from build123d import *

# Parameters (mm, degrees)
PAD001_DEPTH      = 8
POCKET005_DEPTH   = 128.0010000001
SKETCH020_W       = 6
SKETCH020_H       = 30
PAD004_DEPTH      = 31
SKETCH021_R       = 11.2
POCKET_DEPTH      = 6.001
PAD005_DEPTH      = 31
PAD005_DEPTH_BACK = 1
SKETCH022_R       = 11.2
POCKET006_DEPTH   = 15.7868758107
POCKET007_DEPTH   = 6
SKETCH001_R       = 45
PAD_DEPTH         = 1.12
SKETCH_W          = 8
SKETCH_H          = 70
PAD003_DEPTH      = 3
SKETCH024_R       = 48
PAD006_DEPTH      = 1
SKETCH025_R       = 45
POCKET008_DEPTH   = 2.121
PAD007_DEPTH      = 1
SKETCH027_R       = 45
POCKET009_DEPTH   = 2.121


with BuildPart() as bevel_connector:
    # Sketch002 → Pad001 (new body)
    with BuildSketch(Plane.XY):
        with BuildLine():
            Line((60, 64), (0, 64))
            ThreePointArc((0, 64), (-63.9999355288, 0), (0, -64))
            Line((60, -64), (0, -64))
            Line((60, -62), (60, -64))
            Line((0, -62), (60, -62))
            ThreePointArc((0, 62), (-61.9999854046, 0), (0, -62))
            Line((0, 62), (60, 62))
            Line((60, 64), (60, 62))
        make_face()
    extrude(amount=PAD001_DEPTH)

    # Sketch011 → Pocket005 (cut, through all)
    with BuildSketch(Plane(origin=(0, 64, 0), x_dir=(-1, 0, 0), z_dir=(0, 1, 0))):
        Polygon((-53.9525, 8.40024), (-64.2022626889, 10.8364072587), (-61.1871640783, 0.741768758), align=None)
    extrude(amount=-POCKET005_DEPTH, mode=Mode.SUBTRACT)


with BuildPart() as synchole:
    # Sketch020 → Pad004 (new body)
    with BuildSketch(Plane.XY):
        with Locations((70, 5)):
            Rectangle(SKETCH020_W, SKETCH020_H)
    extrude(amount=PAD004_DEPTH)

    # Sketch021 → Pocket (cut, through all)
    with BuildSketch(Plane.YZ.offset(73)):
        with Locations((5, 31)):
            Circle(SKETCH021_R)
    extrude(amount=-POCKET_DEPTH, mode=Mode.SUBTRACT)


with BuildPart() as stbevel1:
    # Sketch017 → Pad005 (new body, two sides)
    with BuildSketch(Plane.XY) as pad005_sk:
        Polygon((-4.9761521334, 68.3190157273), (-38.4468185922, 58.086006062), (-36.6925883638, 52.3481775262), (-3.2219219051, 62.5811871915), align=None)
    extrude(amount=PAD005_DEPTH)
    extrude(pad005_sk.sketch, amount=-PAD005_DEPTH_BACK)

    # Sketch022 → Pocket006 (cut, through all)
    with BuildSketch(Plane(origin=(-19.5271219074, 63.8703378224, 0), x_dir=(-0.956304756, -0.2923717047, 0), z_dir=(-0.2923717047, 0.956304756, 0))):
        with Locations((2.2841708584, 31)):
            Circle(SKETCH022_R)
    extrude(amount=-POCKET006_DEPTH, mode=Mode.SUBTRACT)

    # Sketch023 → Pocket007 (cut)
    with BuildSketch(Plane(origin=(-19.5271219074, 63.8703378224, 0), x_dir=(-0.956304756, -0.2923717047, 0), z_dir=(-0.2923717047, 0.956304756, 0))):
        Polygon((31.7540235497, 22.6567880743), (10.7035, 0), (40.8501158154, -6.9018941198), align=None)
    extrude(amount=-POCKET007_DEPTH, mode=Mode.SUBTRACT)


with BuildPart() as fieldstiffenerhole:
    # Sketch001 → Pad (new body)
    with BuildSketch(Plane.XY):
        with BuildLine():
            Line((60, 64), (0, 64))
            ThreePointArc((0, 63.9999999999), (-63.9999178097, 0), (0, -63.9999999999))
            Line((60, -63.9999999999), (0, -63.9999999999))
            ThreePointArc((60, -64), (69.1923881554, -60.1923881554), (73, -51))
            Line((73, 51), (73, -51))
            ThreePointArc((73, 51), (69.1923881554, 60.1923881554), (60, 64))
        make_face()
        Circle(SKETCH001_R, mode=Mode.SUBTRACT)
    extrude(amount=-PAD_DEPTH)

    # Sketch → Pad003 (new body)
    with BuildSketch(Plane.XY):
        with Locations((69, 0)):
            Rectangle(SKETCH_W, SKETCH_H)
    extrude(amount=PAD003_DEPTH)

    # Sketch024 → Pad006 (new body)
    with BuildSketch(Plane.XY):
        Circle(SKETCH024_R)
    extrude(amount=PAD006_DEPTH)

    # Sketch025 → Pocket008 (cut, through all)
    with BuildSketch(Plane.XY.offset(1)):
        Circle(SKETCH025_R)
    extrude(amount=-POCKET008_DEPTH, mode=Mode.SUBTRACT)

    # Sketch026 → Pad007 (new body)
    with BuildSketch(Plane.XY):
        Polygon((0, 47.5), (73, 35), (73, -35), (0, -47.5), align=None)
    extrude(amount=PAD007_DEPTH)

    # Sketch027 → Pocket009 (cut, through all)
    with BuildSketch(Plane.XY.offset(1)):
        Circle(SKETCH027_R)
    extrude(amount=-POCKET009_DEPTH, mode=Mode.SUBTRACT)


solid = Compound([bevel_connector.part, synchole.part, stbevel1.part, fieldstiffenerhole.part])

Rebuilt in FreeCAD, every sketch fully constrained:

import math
import FreeCAD as App
import Part
import Sketcher
Q = App.Units.Quantity


def add_polygon(sketch, points):
    """Adds a closed chain of lines whose ends are joined by coincident constraints."""
    first, n = sketch.GeometryCount, len(points)
    for a, b in zip(points, points[1:] + points[:1]):
        sketch.addGeometry(Part.LineSegment(App.Vector(*a, 0), App.Vector(*b, 0)), False)
    for i in range(n):
        sketch.addConstraint(Sketcher.Constraint("Coincident", first + i, 2, first + (i + 1) % n, 1))

doc = App.newDocument("Part")
params = doc.addObject("Spreadsheet::Sheet", "Params")
for row, (alias, value) in enumerate([
    ("sketch1_radius", "64 mm"),
    ("sketch1_radius2", "62 mm"),
    ("sketch1_width", "60 mm"),
    ("sketch1_width2", "60 mm"),
    ("pad1_length", "8 mm"),
    ("sketch3_width", "6 mm"),
    ("sketch3_height", "30 mm"),
    ("pad2_length", "31 mm"),
    ("sketch4_diameter", "22.4 mm"),
    ("sketch5_length", "35 mm"),
    ("sketch5_length2", "6 mm"),
    ("pad3_length", "31 mm"),
    ("pad3_length2", "1 mm"),
    ("sketch6_diameter", "22.4 mm"),
    ("pocket4_length", "6 mm"),
    ("sketch8_diameter", "90 mm"),
    ("sketch8_radius", "64 mm"),
    ("sketch8_radius2", "13 mm"),
    ("sketch8_radius3", "13 mm"),
    ("sketch8_width", "60 mm"),
    ("pad4_length", "1.12 mm"),
    ("sketch9_width", "8 mm"),
    ("sketch9_height", "70 mm"),
    ("pad5_length", "3 mm"),
    ("sketch10_diameter", "96 mm"),
    ("pad6_length", "1 mm"),
    ("sketch11_diameter", "90 mm"),
    ("sketch12_height", "95 mm"),
    ("sketch12_height2", "70 mm"),
    ("pad7_length", "1 mm"),
    ("sketch13_diameter", "90 mm"),
], start=1):
    params.set(f"A{row}", alias)
    params.set(f"B{row}", "=" + value)
    params.setAlias(f"B{row}", alias)

body = doc.addObject("PartDesign::Body", "Body")

sketch1 = body.newObject("Sketcher::SketchObject", "Sketch")
sketch1.AttachmentSupport = (doc.getObject("XY_Plane"), [""])
sketch1.MapMode = "FlatFace"
sketch1.addGeometry([
    Part.LineSegment(App.Vector(60, 64, 0), App.Vector(0, 64, 0)),
    Part.ArcOfCircle(Part.Circle(App.Vector(0.000064, 0, 0), App.Vector(0, 0, 1), 64), math.radians(90.000058), math.radians(269.999942)),
    Part.LineSegment(App.Vector(0, -64, 0), App.Vector(60, -64, 0)),
    Part.LineSegment(App.Vector(60, -64, 0), App.Vector(60, -62, 0)),
    Part.LineSegment(App.Vector(60, -62, 0), App.Vector(0, -62, 0)),
    Part.ArcOfCircle(Part.Circle(App.Vector(0.000015, 0, 0), App.Vector(0, 0, 1), 62), math.radians(90.000013), math.radians(269.999987)),
    Part.LineSegment(App.Vector(0, 62, 0), App.Vector(60, 62, 0)),
    Part.LineSegment(App.Vector(60, 62, 0), App.Vector(60, 64, 0)),
], False)
sketch1.addConstraint([
    Sketcher.Constraint("Coincident", 0, 2, 1, 1),
    Sketcher.Constraint("Coincident", 1, 2, 2, 1),
    Sketcher.Constraint("Coincident", 2, 2, 3, 1),
    Sketcher.Constraint("Coincident", 3, 2, 4, 1),
    Sketcher.Constraint("Coincident", 4, 2, 5, 2),
    Sketcher.Constraint("Coincident", 5, 1, 6, 1),
    Sketcher.Constraint("Coincident", 6, 2, 7, 1),
    Sketcher.Constraint("Coincident", 7, 2, 0, 1),
    Sketcher.Constraint("Horizontal", 0),
    Sketcher.Constraint("Horizontal", 2),
    Sketcher.Constraint("Vertical", 3),
    Sketcher.Constraint("Horizontal", 4),
    Sketcher.Constraint("Horizontal", 6),
    Sketcher.Constraint("Vertical", 7),
    Sketcher.Constraint("PointOnObject", 1, 3, -1),
    Sketcher.Constraint("PointOnObject", 5, 3, -1),
    Sketcher.Constraint("PointOnObject", 0, 2, -2),
    Sketcher.Constraint("PointOnObject", 1, 2, -2),
    Sketcher.Constraint("PointOnObject", 4, 2, -2),
    Sketcher.Constraint("PointOnObject", 5, 1, -2),
    Sketcher.Constraint("Radius", 1, Q("64 mm")),
    Sketcher.Constraint("Radius", 5, Q("62 mm")),
    Sketcher.Constraint("DistanceX", 0, 2, 0, 1, Q("60 mm")),
    Sketcher.Constraint("DistanceX", 2, 1, 2, 2, Q("60 mm")),
    Sketcher.Constraint("DistanceX", 1, 3, 2, 2, Q("59.999936 mm")),
    Sketcher.Constraint("DistanceX", 5, 3, 2, 2, Q("59.999985 mm")),
])
sketch1.setExpression("Constraints[20]", "Params.sketch1_radius")
sketch1.setExpression("Constraints[21]", "Params.sketch1_radius2")
sketch1.setExpression("Constraints[22]", "Params.sketch1_width")
sketch1.setExpression("Constraints[23]", "Params.sketch1_width2")
pad1 = body.newObject("PartDesign::Pad", "Pad")
pad1.Profile = sketch1
pad1.setExpression("Length", "Params.pad1_length")

sketch2 = body.newObject("Sketcher::SketchObject", "Sketch001")
sketch2.AttachmentSupport = (doc.getObject("XZ_Plane"), [""])
sketch2.MapMode = "FlatFace"
sketch2.AttachmentOffset = App.Placement(App.Vector(0, 0, -64), App.Rotation())
add_polygon(sketch2, [(54, 8), (64, 11), (61, 1)])
sketch2.addConstraint([
    Sketcher.Constraint("Equal", 0, 1),
    Sketcher.Constraint("Equal", 1, 2),
    Sketcher.Constraint("Angle", 0, Q("13.37 deg")),
    Sketcher.Constraint("Distance", 0, Q("10.5353 mm")),
    Sketcher.Constraint("DistanceX", -1, 1, 2, 2, Q("53.9525 mm")),
    Sketcher.Constraint("DistanceY", -1, 1, 1, 2, Q("0.741769 mm")),
])
pocket1 = body.newObject("PartDesign::Pocket", "Pocket")
pocket1.Profile = sketch2
pocket1.Type = "ThroughAll"
pocket1.Reversed = True
body2 = doc.addObject("PartDesign::Body", "Body001")

sketch3 = body2.newObject("Sketcher::SketchObject", "Sketch002")
sketch3.AttachmentSupport = (doc.getObject("XY_Plane001"), [""])
sketch3.MapMode = "FlatFace"
add_polygon(sketch3, [(67, 20), (67, -10), (73, -10), (73, 20)])
sketch3.addConstraint([
    Sketcher.Constraint("Vertical", 0),
    Sketcher.Constraint("Horizontal", 1),
    Sketcher.Constraint("Vertical", 2),
    Sketcher.Constraint("Horizontal", 3),
    Sketcher.Constraint("DistanceX", 1, 1, 1, 2, Q("6 mm")),
    Sketcher.Constraint("DistanceY", 0, 2, 0, 1, Q("30 mm")),
    Sketcher.Constraint("DistanceX", -1, 1, 0, 2, Q("67 mm")),
    Sketcher.Constraint("DistanceY", 0, 2, -1, 1, Q("10 mm")),
])
sketch3.setExpression("Constraints[8]", "Params.sketch3_width")
sketch3.setExpression("Constraints[9]", "Params.sketch3_height")
pad2 = body2.newObject("PartDesign::Pad", "Pad001")
pad2.Profile = sketch3
pad2.setExpression("Length", "Params.pad2_length")

sketch4 = body2.newObject("Sketcher::SketchObject", "Sketch003")
sketch4.AttachmentSupport = (doc.getObject("YZ_Plane001"), [""])
sketch4.MapMode = "FlatFace"
sketch4.AttachmentOffset = App.Placement(App.Vector(0, 0, 73), App.Rotation())
sketch4.addGeometry(Part.Circle(App.Vector(5, 31, 0), App.Vector(0, 0, 1), 11), False)
sketch4.addConstraint([
    Sketcher.Constraint("Diameter", 0, Q("22.4 mm")),
    Sketcher.Constraint("DistanceX", -1, 1, 0, 3, Q("5 mm")),
    Sketcher.Constraint("DistanceY", -1, 1, 0, 3, Q("31 mm")),
])
sketch4.setExpression("Constraints[0]", "Params.sketch4_diameter")
pocket2 = body2.newObject("PartDesign::Pocket", "Pocket001")
pocket2.Profile = sketch4
pocket2.Type = "ThroughAll"
body3 = doc.addObject("PartDesign::Body", "Body002")

sketch5 = body3.newObject("Sketcher::SketchObject", "Sketch004")
sketch5.AttachmentSupport = (doc.getObject("XY_Plane002"), [""])
sketch5.MapMode = "FlatFace"
add_polygon(sketch5, [(-5, 68), (-38, 58), (-37, 52), (-3, 63)])
sketch5.addConstraint([
    Sketcher.Constraint("Perpendicular", 0, 1),
    Sketcher.Constraint("Perpendicular", 1, 2),
    Sketcher.Constraint("Perpendicular", 2, 3),
    Sketcher.Constraint("Angle", 0, Q("-163 deg")),
    Sketcher.Constraint("Distance", 0, Q("35 mm")),
    Sketcher.Constraint("Distance", 1, Q("6 mm")),
    Sketcher.Constraint("DistanceX", 0, 2, -1, 1, Q("38.446819 mm")),
    Sketcher.Constraint("DistanceY", -1, 1, 0, 2, Q("58.086006 mm")),
])
sketch5.setExpression("Constraints[8]", "Params.sketch5_length")
sketch5.setExpression("Constraints[9]", "Params.sketch5_length2")
pad3 = body3.newObject("PartDesign::Pad", "Pad002")
pad3.Profile = sketch5
pad3.Type = "TwoLengths"
pad3.setExpression("Length", "Params.pad3_length")
pad3.setExpression("Length2", "Params.pad3_length2")

sketch6 = body3.newObject("Sketcher::SketchObject", "Sketch005")
sketch6.Placement = App.Placement(App.Vector(-19.527122, 63.870338, 0), App.Rotation(App.Vector(-0.956304756, -0.292371705, 0), App.Vector(0, 0, 1), App.Vector(-0.292371705, 0.956304756, 0), "ZXY"))
sketch6.addGeometry(Part.Circle(App.Vector(2, 31, 0), App.Vector(0, 0, 1), 11), False)
sketch6.addConstraint([
    Sketcher.Constraint("Diameter", 0, Q("22.4 mm")),
    Sketcher.Constraint("DistanceY", -1, 1, 0, 3, Q("31 mm")),
    Sketcher.Constraint("DistanceX", -1, 1, 0, 3, Q("2.284171 mm")),
])
sketch6.setExpression("Constraints[0]", "Params.sketch6_diameter")
pocket3 = body3.newObject("PartDesign::Pocket", "Pocket002")
pocket3.Profile = sketch6
pocket3.Type = "ThroughAll"

sketch7 = body3.newObject("Sketcher::SketchObject", "Sketch006")
sketch7.Placement = App.Placement(App.Vector(-19.527122, 63.870338, 0), App.Rotation(App.Vector(-0.956304756, -0.292371705, 0), App.Vector(0, 0, 1), App.Vector(-0.292371705, 0.956304756, 0), "ZXY"))
add_polygon(sketch7, [(32, 23), (11, 0), (41, -7)])
sketch7.addConstraint([
    Sketcher.Constraint("PointOnObject", 0, 2, -1),
    Sketcher.Constraint("Equal", 0, 1),
    Sketcher.Constraint("Equal", 1, 2),
    Sketcher.Constraint("Distance", 0, Q("30.9266 mm")),
    Sketcher.Constraint("DistanceX", -1, 1, 0, 2, Q("10.7035 mm")),
    Sketcher.Constraint("DistanceY", -1, 1, 2, 2, Q("22.656788 mm")),
])
pocket4 = body3.newObject("PartDesign::Pocket", "Pocket003")
pocket4.Profile = sketch7
pocket4.setExpression("Length", "Params.pocket4_length")
body4 = doc.addObject("PartDesign::Body", "Body003")

sketch8 = body4.newObject("Sketcher::SketchObject", "Sketch007")
sketch8.AttachmentSupport = (doc.getObject("XY_Plane003"), [""])
sketch8.MapMode = "FlatFace"
sketch8.addGeometry([
    Part.LineSegment(App.Vector(60, 64, 0), App.Vector(0, 64, 0)),
    Part.ArcOfCircle(Part.Circle(App.Vector(0.000082, 0, 0), App.Vector(0, 0, 1), 64), math.radians(90.000074), math.radians(269.999926)),
    Part.LineSegment(App.Vector(0, -64, 0), App.Vector(60, -64, 0)),
    Part.ArcOfCircle(Part.Circle(App.Vector(60, -51, 0), App.Vector(0, 0, 1), 13), math.radians(-90), math.radians(0)),
    Part.LineSegment(App.Vector(73, -51, 0), App.Vector(73, 51, 0)),
    Part.ArcOfCircle(Part.Circle(App.Vector(60, 51, 0), App.Vector(0, 0, 1), 13), math.radians(0), math.radians(90)),
    Part.Circle(App.Vector(0, 0, 0), App.Vector(0, 0, 1), 45),
], False)
sketch8.addConstraint([
    Sketcher.Constraint("Coincident", 0, 2, 1, 1),
    Sketcher.Constraint("Coincident", 1, 2, 2, 1),
    Sketcher.Constraint("Coincident", 2, 2, 3, 1),
    Sketcher.Constraint("Coincident", 3, 2, 4, 1),
    Sketcher.Constraint("Coincident", 4, 2, 5, 1),
    Sketcher.Constraint("Coincident", 5, 2, 0, 1),
    Sketcher.Constraint("Horizontal", 0),
    Sketcher.Constraint("Horizontal", 2),
    Sketcher.Constraint("Vertical", 4),
    Sketcher.Constraint("Coincident", 6, 3, -1, 1),
    Sketcher.Constraint("PointOnObject", 1, 3, -1),
    Sketcher.Constraint("PointOnObject", 0, 2, -2),
    Sketcher.Constraint("PointOnObject", 1, 2, -2),
    Sketcher.Constraint("Diameter", 6, Q("90 mm")),
    Sketcher.Constraint("Radius", 1, Q("64 mm")),
    Sketcher.Constraint("Radius", 3, Q("13 mm")),
    Sketcher.Constraint("Radius", 5, Q("13 mm")),
    Sketcher.Constraint("DistanceX", 0, 2, 0, 1, Q("60 mm")),
    Sketcher.Constraint("DistanceX", 2, 1, 2, 2, Q("60 mm")),
    Sketcher.Constraint("DistanceY", 4, 1, 4, 2, Q("102 mm")),
    Sketcher.Constraint("DistanceX", -1, 1, 3, 3, Q("60 mm")),
    Sketcher.Constraint("DistanceY", 3, 2, -1, 1, Q("51 mm")),
    Sketcher.Constraint("DistanceX", 1, 3, 3, 3, Q("59.999918 mm")),
])
sketch8.setExpression("Constraints[13]", "Params.sketch8_diameter")
sketch8.setExpression("Constraints[14]", "Params.sketch8_radius")
sketch8.setExpression("Constraints[15]", "Params.sketch8_radius2")
sketch8.setExpression("Constraints[16]", "Params.sketch8_radius3")
sketch8.setExpression("Constraints[17]", "Params.sketch8_width")
pad4 = body4.newObject("PartDesign::Pad", "Pad003")
pad4.Profile = sketch8
pad4.setExpression("Length", "Params.pad4_length")
pad4.Reversed = True

sketch9 = body4.newObject("Sketcher::SketchObject", "Sketch008")
sketch9.AttachmentSupport = (doc.getObject("XY_Plane003"), [""])
sketch9.MapMode = "FlatFace"
add_polygon(sketch9, [(65, 35), (65, -35), (73, -35), (73, 35)])
sketch9.addConstraint([
    Sketcher.Constraint("Vertical", 0),
    Sketcher.Constraint("Horizontal", 1),
    Sketcher.Constraint("Vertical", 2),
    Sketcher.Constraint("Horizontal", 3),
    Sketcher.Constraint("DistanceX", 1, 1, 1, 2, Q("8 mm")),
    Sketcher.Constraint("DistanceY", 0, 2, 0, 1, Q("70 mm")),
    Sketcher.Constraint("DistanceX", -1, 1, 0, 2, Q("65 mm")),
    Sketcher.Constraint("DistanceY", 0, 2, -1, 1, Q("35 mm")),
])
sketch9.setExpression("Constraints[8]", "Params.sketch9_width")
sketch9.setExpression("Constraints[9]", "Params.sketch9_height")
pad5 = body4.newObject("PartDesign::Pad", "Pad004")
pad5.Profile = sketch9
pad5.setExpression("Length", "Params.pad5_length")

sketch10 = body4.newObject("Sketcher::SketchObject", "Sketch009")
sketch10.AttachmentSupport = (doc.getObject("XY_Plane003"), [""])
sketch10.MapMode = "FlatFace"
sketch10.addGeometry(Part.Circle(App.Vector(0, 0, 0), App.Vector(0, 0, 1), 48), False)
sketch10.addConstraint([
    Sketcher.Constraint("Coincident", 0, 3, -1, 1),
    Sketcher.Constraint("Diameter", 0, Q("96 mm")),
])
sketch10.setExpression("Constraints[1]", "Params.sketch10_diameter")
pad6 = body4.newObject("PartDesign::Pad", "Pad005")
pad6.Profile = sketch10
pad6.setExpression("Length", "Params.pad6_length")

sketch11 = body4.newObject("Sketcher::SketchObject", "Sketch010")
sketch11.AttachmentSupport = (doc.getObject("XY_Plane003"), [""])
sketch11.MapMode = "FlatFace"
sketch11.AttachmentOffset = App.Placement(App.Vector(0, 0, 1), App.Rotation())
sketch11.addGeometry(Part.Circle(App.Vector(0, 0, 0), App.Vector(0, 0, 1), 45), False)
sketch11.addConstraint([
    Sketcher.Constraint("Coincident", 0, 3, -1, 1),
    Sketcher.Constraint("Diameter", 0, Q("90 mm")),
])
sketch11.setExpression("Constraints[1]", "Params.sketch11_diameter")
pocket5 = body4.newObject("PartDesign::Pocket", "Pocket004")
pocket5.Profile = sketch11
pocket5.Type = "ThroughAll"

sketch12 = body4.newObject("Sketcher::SketchObject", "Sketch011")
sketch12.AttachmentSupport = (doc.getObject("XY_Plane003"), [""])
sketch12.MapMode = "FlatFace"
add_polygon(sketch12, [(73, 35), (0, 48), (0, -48), (73, -35)])
sketch12.addConstraint([
    Sketcher.Constraint("Vertical", 1),
    Sketcher.Constraint("Vertical", 3),
    Sketcher.Constraint("Symmetric", 0, 2, 1, 2, -1, 1),
    Sketcher.Constraint("Equal", 0, 2),
    Sketcher.Constraint("DistanceY", 1, 2, 1, 1, Q("95 mm")),
    Sketcher.Constraint("DistanceY", 3, 1, 3, 2, Q("70 mm")),
    Sketcher.Constraint("DistanceX", -1, 1, 2, 2, Q("73 mm")),
])
sketch12.setExpression("Constraints[8]", "Params.sketch12_height")
sketch12.setExpression("Constraints[9]", "Params.sketch12_height2")
pad7 = body4.newObject("PartDesign::Pad", "Pad006")
pad7.Profile = sketch12
pad7.setExpression("Length", "Params.pad7_length")

sketch13 = body4.newObject("Sketcher::SketchObject", "Sketch012")
sketch13.AttachmentSupport = (doc.getObject("XY_Plane003"), [""])
sketch13.MapMode = "FlatFace"
sketch13.AttachmentOffset = App.Placement(App.Vector(0, 0, 1), App.Rotation())
sketch13.addGeometry(Part.Circle(App.Vector(0, 0, 0), App.Vector(0, 0, 1), 45), False)
sketch13.addConstraint([
    Sketcher.Constraint("Coincident", 0, 3, -1, 1),
    Sketcher.Constraint("Diameter", 0, Q("90 mm")),
])
sketch13.setExpression("Constraints[1]", "Params.sketch13_diameter")
pocket6 = body4.newObject("PartDesign::Pocket", "Pocket005")
pocket6.Profile = sketch13
pocket6.Type = "ThroughAll"

doc.recompute()
